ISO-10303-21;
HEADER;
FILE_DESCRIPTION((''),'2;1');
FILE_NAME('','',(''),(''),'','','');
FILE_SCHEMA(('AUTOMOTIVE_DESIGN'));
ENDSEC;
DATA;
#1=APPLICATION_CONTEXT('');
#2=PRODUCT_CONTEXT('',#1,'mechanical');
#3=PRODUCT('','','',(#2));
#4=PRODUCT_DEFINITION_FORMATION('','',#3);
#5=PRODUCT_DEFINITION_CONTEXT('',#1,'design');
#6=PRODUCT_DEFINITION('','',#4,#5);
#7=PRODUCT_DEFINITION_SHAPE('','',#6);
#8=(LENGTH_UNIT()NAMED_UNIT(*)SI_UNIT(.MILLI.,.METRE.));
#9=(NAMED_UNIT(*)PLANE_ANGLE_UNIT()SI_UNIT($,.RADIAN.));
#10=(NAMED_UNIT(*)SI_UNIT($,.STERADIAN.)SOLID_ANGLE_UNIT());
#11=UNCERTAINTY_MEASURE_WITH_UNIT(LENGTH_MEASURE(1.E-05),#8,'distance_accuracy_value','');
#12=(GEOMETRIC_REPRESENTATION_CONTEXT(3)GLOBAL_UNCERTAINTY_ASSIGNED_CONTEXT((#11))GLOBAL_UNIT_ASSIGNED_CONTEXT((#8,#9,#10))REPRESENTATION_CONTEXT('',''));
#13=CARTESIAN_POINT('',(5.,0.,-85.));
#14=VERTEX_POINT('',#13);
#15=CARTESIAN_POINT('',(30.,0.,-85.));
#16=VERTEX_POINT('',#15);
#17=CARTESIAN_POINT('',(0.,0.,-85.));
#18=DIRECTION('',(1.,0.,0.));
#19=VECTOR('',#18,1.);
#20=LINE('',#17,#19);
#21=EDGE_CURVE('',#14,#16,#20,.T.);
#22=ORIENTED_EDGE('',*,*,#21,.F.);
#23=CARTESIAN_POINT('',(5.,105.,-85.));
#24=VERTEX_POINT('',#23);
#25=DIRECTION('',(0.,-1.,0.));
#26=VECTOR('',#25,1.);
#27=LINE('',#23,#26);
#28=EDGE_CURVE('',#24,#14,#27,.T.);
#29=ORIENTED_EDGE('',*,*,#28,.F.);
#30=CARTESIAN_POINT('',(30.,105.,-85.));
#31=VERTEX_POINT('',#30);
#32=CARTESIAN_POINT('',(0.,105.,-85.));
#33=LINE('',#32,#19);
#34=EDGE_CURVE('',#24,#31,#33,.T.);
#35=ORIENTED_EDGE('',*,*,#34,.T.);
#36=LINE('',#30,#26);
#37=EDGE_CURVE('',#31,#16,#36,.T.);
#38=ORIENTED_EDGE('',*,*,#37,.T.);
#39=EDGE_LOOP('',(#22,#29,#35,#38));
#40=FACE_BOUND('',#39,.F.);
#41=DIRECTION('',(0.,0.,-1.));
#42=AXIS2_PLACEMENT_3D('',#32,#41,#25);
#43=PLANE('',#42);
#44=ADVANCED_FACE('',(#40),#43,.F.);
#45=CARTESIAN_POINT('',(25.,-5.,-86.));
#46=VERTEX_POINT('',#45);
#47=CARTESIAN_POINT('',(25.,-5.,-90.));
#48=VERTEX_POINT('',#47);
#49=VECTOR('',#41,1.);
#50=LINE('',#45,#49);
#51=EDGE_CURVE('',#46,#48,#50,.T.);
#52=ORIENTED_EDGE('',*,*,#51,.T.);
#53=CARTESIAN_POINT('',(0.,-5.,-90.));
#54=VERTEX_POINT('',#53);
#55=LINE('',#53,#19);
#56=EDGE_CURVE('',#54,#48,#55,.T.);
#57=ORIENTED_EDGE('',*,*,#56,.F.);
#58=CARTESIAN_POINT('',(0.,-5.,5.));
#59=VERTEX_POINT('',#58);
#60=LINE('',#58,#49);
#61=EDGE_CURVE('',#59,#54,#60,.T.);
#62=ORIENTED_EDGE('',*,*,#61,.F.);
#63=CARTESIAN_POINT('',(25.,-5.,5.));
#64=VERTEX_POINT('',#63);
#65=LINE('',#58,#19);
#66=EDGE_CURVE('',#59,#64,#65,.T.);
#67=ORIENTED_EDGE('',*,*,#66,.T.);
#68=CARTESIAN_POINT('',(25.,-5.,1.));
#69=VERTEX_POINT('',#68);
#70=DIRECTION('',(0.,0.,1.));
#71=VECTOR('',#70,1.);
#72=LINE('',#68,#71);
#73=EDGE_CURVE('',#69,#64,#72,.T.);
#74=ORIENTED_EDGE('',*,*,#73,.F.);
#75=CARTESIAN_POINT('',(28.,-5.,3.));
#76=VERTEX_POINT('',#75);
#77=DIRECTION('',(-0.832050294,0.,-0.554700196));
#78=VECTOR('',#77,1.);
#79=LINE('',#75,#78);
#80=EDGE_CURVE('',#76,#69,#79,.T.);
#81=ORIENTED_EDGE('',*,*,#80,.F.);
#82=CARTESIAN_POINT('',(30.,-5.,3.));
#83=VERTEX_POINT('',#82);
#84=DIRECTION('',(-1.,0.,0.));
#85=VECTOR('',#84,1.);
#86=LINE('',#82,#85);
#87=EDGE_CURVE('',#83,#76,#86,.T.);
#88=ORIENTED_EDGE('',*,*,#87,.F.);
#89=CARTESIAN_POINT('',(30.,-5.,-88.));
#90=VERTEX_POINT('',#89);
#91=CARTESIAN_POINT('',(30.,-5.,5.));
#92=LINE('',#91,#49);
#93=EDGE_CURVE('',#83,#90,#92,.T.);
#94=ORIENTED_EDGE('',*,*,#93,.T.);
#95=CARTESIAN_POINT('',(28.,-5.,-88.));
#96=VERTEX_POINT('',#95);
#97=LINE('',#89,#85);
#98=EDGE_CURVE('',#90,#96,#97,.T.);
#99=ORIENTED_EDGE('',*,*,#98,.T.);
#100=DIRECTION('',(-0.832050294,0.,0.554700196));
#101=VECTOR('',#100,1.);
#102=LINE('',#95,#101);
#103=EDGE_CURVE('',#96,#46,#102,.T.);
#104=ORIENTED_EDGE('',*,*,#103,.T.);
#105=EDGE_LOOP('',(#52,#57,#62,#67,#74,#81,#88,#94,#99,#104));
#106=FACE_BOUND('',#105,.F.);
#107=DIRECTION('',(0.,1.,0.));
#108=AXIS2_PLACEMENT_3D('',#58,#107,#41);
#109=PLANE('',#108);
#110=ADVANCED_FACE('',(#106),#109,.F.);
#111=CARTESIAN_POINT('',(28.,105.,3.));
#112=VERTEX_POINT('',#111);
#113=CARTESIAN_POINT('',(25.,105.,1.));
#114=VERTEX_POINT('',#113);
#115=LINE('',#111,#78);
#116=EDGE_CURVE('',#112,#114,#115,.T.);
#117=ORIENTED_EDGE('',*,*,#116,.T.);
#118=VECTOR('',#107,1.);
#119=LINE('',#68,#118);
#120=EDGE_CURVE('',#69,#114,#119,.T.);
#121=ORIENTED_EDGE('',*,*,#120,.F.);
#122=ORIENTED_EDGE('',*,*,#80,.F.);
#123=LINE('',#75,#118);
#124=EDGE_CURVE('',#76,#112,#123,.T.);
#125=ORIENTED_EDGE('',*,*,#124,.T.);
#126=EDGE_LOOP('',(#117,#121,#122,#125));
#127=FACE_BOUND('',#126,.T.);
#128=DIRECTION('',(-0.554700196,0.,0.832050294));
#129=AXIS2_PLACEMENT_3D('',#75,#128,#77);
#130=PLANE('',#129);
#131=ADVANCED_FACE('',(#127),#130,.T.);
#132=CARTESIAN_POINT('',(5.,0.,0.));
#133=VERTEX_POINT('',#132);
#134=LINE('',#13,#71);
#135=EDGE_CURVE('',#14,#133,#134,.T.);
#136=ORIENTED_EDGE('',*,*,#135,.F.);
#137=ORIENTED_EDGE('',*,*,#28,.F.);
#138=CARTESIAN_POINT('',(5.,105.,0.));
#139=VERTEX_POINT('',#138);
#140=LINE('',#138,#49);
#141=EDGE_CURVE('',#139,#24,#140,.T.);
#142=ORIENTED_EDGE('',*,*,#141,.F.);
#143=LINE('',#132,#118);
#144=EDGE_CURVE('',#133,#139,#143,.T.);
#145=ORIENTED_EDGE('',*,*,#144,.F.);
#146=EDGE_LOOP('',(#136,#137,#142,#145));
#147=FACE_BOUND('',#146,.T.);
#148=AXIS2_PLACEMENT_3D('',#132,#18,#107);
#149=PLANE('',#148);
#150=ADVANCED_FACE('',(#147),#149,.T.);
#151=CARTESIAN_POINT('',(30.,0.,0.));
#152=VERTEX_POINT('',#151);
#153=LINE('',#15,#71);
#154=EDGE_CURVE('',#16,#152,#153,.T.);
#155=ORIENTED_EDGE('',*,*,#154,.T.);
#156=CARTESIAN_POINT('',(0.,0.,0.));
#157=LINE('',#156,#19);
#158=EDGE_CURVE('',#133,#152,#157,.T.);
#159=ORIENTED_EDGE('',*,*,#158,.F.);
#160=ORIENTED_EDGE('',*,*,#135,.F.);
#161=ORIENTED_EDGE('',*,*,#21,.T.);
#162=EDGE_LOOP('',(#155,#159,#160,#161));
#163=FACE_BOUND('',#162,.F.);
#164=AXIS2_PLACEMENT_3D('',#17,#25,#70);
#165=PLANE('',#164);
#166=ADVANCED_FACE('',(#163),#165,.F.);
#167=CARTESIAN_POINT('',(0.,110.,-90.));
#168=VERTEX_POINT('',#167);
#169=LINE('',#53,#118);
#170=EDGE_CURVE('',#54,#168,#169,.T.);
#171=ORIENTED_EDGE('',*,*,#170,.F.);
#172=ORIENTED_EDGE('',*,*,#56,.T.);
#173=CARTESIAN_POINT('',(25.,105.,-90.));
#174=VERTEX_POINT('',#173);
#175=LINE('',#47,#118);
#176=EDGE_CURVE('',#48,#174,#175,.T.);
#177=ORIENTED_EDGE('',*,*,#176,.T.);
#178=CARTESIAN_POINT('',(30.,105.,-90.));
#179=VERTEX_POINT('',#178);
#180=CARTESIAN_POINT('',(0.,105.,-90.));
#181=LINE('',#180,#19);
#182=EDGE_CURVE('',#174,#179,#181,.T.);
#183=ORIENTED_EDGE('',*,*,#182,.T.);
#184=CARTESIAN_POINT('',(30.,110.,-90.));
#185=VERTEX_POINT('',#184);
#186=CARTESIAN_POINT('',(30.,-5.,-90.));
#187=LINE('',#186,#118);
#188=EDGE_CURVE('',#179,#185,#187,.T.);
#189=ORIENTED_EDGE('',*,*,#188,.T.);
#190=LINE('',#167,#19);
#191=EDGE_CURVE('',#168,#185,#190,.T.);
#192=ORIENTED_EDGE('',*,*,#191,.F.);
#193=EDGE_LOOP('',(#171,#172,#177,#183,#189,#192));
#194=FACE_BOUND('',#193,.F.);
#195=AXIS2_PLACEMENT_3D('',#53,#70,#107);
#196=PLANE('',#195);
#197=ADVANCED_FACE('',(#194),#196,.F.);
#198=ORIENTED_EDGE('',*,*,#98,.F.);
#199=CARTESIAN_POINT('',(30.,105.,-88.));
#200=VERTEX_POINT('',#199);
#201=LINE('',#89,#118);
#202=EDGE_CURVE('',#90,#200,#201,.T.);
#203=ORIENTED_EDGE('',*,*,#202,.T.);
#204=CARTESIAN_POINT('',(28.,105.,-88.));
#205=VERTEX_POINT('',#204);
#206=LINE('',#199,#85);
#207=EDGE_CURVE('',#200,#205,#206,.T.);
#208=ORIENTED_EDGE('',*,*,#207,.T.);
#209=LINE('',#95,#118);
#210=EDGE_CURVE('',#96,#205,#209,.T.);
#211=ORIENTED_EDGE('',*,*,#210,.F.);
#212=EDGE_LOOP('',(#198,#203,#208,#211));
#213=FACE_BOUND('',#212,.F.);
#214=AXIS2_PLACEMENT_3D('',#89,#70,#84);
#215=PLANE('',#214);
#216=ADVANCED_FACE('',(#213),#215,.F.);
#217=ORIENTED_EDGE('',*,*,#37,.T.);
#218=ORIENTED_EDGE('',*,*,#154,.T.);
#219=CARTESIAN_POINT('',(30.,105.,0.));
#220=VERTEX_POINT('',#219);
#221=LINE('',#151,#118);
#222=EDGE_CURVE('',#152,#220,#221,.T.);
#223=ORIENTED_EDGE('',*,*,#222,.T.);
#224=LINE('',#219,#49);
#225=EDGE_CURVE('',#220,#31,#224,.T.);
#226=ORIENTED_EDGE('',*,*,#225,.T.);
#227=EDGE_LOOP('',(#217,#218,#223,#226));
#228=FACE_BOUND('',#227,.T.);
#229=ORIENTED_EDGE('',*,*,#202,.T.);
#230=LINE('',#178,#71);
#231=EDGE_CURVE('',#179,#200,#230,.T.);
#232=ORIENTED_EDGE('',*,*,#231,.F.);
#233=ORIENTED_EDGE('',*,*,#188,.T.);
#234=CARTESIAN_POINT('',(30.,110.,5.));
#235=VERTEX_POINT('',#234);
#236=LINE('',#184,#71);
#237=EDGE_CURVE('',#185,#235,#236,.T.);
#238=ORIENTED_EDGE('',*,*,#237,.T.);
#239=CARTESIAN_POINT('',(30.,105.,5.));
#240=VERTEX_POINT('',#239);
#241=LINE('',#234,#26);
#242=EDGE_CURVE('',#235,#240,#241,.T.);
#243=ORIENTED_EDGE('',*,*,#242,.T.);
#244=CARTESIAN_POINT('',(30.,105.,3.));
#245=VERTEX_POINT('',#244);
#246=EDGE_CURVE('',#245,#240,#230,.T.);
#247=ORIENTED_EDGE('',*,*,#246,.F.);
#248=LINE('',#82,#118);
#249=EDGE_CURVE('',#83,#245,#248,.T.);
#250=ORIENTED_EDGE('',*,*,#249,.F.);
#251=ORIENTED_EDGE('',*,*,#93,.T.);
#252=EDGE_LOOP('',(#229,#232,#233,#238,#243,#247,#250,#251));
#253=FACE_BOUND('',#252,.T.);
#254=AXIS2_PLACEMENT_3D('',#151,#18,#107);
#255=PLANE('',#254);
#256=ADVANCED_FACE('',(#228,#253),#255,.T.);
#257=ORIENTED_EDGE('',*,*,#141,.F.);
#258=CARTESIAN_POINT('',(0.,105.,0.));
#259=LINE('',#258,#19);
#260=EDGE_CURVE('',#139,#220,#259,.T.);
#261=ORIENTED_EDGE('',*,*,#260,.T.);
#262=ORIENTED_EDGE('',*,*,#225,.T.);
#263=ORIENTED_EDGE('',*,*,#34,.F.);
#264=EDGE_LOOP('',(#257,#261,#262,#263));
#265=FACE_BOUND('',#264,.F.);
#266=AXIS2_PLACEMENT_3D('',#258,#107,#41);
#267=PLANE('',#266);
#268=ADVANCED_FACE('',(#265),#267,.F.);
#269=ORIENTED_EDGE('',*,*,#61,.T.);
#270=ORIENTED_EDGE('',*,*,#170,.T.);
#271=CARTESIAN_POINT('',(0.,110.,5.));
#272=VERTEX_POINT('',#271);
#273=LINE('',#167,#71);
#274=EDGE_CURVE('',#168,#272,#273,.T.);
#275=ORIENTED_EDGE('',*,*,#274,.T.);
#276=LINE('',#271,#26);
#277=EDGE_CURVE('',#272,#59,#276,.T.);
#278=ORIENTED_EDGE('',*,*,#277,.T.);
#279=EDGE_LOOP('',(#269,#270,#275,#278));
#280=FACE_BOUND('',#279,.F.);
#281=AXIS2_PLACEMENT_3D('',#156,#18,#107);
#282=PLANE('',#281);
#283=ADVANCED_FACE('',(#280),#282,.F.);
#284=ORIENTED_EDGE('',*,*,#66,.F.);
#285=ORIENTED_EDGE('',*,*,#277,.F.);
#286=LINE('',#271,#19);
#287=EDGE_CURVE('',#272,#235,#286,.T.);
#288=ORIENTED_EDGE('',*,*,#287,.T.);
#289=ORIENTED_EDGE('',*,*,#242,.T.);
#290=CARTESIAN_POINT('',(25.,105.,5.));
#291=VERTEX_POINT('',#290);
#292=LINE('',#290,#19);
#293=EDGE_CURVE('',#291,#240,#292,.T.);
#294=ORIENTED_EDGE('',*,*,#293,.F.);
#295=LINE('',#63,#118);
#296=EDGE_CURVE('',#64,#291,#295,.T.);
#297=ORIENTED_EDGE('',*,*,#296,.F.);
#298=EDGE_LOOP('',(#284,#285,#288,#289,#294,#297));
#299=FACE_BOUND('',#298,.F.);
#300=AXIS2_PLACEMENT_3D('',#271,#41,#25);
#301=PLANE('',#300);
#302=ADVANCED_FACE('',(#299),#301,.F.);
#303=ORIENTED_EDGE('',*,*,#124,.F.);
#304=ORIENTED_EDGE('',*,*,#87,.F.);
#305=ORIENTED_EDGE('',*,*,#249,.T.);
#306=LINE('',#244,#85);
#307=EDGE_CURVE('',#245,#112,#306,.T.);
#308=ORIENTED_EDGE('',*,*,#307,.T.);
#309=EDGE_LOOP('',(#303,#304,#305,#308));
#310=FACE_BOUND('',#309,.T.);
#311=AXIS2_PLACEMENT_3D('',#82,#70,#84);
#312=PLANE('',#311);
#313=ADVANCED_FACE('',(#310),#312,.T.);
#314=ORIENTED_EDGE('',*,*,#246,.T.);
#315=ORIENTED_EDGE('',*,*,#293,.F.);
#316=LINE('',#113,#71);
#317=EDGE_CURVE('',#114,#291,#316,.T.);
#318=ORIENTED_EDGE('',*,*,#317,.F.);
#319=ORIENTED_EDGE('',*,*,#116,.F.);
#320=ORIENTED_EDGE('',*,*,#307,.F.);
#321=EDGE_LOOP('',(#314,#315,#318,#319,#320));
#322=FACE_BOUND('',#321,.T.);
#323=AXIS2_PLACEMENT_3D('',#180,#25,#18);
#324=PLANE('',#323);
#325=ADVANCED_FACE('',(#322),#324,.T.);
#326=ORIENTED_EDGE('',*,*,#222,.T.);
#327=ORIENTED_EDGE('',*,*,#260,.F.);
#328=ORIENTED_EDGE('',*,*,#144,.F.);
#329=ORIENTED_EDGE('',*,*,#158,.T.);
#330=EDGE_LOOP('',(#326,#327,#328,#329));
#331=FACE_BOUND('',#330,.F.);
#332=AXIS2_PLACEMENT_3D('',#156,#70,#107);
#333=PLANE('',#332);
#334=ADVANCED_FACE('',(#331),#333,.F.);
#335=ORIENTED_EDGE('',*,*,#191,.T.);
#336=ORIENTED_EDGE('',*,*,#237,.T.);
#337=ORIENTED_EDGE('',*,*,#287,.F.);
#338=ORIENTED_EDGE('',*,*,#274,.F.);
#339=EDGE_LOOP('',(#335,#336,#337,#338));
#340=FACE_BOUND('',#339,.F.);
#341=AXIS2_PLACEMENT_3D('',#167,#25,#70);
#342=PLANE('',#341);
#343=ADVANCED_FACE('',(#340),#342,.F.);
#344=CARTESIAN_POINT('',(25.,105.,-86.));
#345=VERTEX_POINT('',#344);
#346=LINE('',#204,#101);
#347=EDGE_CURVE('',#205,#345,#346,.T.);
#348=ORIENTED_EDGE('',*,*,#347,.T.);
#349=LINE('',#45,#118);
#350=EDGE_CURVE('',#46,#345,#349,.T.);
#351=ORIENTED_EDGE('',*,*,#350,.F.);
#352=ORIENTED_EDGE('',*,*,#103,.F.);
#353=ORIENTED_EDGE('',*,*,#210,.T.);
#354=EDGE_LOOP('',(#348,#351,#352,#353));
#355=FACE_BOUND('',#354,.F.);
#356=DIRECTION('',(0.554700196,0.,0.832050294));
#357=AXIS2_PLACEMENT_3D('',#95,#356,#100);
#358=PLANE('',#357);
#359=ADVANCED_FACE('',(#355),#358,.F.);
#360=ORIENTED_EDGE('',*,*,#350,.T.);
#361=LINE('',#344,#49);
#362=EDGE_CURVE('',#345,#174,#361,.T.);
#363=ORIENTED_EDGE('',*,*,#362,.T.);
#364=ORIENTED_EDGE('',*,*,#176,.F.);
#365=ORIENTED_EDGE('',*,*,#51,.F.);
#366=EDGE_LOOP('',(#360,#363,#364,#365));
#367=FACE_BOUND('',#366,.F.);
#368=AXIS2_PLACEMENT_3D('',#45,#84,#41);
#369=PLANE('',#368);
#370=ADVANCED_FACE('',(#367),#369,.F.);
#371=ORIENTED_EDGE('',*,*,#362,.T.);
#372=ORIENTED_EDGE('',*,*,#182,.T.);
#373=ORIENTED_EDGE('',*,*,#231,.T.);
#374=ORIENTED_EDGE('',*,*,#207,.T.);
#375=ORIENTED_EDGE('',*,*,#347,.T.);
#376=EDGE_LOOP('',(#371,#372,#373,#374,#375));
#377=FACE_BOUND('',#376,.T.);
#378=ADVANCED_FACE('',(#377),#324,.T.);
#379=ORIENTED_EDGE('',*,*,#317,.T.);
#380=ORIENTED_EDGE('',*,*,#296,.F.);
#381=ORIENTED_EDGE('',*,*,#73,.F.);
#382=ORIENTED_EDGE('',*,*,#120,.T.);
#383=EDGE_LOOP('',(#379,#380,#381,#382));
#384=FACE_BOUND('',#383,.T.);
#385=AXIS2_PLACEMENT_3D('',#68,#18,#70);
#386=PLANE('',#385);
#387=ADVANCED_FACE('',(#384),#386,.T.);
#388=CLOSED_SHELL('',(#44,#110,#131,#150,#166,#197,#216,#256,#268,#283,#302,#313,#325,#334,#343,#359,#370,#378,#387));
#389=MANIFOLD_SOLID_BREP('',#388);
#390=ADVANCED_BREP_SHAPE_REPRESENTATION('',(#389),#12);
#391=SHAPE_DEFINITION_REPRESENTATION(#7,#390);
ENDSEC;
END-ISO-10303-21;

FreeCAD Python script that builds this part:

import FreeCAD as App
import Part
import Sketcher

V = App.Vector
Q = App.Units.Quantity

doc = App.newDocument("Part")
body = doc.addObject("PartDesign::Body", "Body")

# Sketch on YZ plane
sketch1 = body.newObject("Sketcher::SketchObject", "Sketch")
sketch1.AttachmentSupport = (doc.getObject("YZ_Plane"), [""])
sketch1.MapMode = "FlatFace"
sketch1.addGeometry(Part.LineSegment(V(110, -90, 0), V(110, 5, 0)), False)
sketch1.addGeometry(Part.LineSegment(V(110, 5, 0), V(-5, 5, 0)), False)
sketch1.addGeometry(Part.LineSegment(V(-5, 5, 0), V(-5, -90, 0)), False)
sketch1.addGeometry(Part.LineSegment(V(-5, -90, 0), V(110, -90, 0)), False)
sketch1.addGeometry(Part.LineSegment(V(0, -85, 0), V(0, 0, 0)), False)
sketch1.addGeometry(Part.LineSegment(V(0, 0, 0), V(105, 0, 0)), False)
sketch1.addGeometry(Part.LineSegment(V(105, 0, 0), V(105, -85, 0)), False)
sketch1.addGeometry(Part.LineSegment(V(105, -85, 0), V(0, -85, 0)), False)
sketch1.addConstraint(Sketcher.Constraint("Coincident", 0, 2, 1, 1))
sketch1.addConstraint(Sketcher.Constraint("Coincident", 1, 2, 2, 1))
sketch1.addConstraint(Sketcher.Constraint("Coincident", 2, 2, 3, 1))
sketch1.addConstraint(Sketcher.Constraint("Coincident", 3, 2, 0, 1))
sketch1.addConstraint(Sketcher.Constraint("Coincident", 4, 2, 5, 1))
sketch1.addConstraint(Sketcher.Constraint("Coincident", 5, 2, 6, 1))
sketch1.addConstraint(Sketcher.Constraint("Coincident", 6, 2, 7, 1))
sketch1.addConstraint(Sketcher.Constraint("Coincident", 7, 2, 4, 1))
sketch1.addConstraint(Sketcher.Constraint("Vertical", 0))
sketch1.addConstraint(Sketcher.Constraint("Horizontal", 1))
sketch1.addConstraint(Sketcher.Constraint("Vertical", 2))
sketch1.addConstraint(Sketcher.Constraint("Horizontal", 3))
sketch1.addConstraint(Sketcher.Constraint("Vertical", 4))
sketch1.addConstraint(Sketcher.Constraint("Horizontal", 5))
sketch1.addConstraint(Sketcher.Constraint("Vertical", 6))
sketch1.addConstraint(Sketcher.Constraint("Horizontal", 7))
sketch1.addConstraint(Sketcher.Constraint("Coincident", 4, 2, -1, 1))
sketch1.addConstraint(Sketcher.Constraint("DistanceX", 5, 1, 5, 2, Q("105 mm")))
sketch1.addConstraint(Sketcher.Constraint("DistanceY", 4, 1, 4, 2, Q("85 mm")))
sketch1.addConstraint(Sketcher.Constraint("DistanceY", -1, 1, 0, 2, Q("5 mm")))
sketch1.addConstraint(Sketcher.Constraint("DistanceX", 1, 2, -1, 1, Q("5 mm")))
sketch1.addConstraint(Sketcher.Constraint("DistanceX", 5, 2, 0, 2, Q("5 mm")))
sketch1.addConstraint(Sketcher.Constraint("DistanceY", 3, 2, 6, 2, Q("5 mm")))
pad1 = body.newObject("PartDesign::Pad", "Pad")
pad1.Profile = sketch1
pad1.Length = 30

# Sketch on YZ plane
sketch2 = body.newObject("Sketcher::SketchObject", "Sketch001")
sketch2.AttachmentSupport = (doc.getObject("YZ_Plane"), [""])
sketch2.MapMode = "FlatFace"
sketch2.addGeometry(Part.LineSegment(V(105, 0, 0), V(0, 0, 0)), False)
sketch2.addGeometry(Part.LineSegment(V(0, 0, 0), V(0, -85, 0)), False)
sketch2.addGeometry(Part.LineSegment(V(0, -85, 0), V(105, -85, 0)), False)
sketch2.addGeometry(Part.LineSegment(V(105, -85, 0), V(105, 0, 0)), False)
sketch2.addConstraint(Sketcher.Constraint("Coincident", 0, 2, 1, 1))
sketch2.addConstraint(Sketcher.Constraint("Coincident", 1, 2, 2, 1))
sketch2.addConstraint(Sketcher.Constraint("Coincident", 2, 2, 3, 1))
sketch2.addConstraint(Sketcher.Constraint("Coincident", 3, 2, 0, 1))
sketch2.addConstraint(Sketcher.Constraint("Horizontal", 0))
sketch2.addConstraint(Sketcher.Constraint("Vertical", 1))
sketch2.addConstraint(Sketcher.Constraint("Horizontal", 2))
sketch2.addConstraint(Sketcher.Constraint("Vertical", 3))
sketch2.addConstraint(Sketcher.Constraint("Coincident", 0, 2, -1, 1))
sketch2.addConstraint(Sketcher.Constraint("DistanceX", 0, 2, 0, 1, Q("105 mm")))
sketch2.addConstraint(Sketcher.Constraint("DistanceY", 1, 2, 1, 1, Q("85 mm")))
pad2 = body.newObject("PartDesign::Pad", "Pad001")
pad2.Profile = sketch2
pad2.Length = 5

# Sketch on XZ plane
sketch3 = body.newObject("Sketcher::SketchObject", "Sketch002")
sketch3.AttachmentSupport = (doc.getObject("XZ_Plane"), [""])
sketch3.MapMode = "FlatFace"
sketch3.AttachmentOffset = App.Placement(V(0, 0, 5), App.Rotation())
sketch3.addGeometry(Part.LineSegment(V(25, -86, 0), V(25, -90, 0)), False)
sketch3.addGeometry(Part.LineSegment(V(25, -90, 0), V(30, -90, 0)), False)
sketch3.addGeometry(Part.LineSegment(V(30, -90, 0), V(30, -88, 0)), False)
sketch3.addGeometry(Part.LineSegment(V(30, -88, 0), V(28, -88, 0)), False)
sketch3.addGeometry(Part.LineSegment(V(28, -88, 0), V(25, -86, 0)), False)
sketch3.addGeometry(Part.LineSegment(V(28, 3, 0), V(30, 3, 0)), False)
sketch3.addGeometry(Part.LineSegment(V(30, 3, 0), V(30, 5, 0)), False)
sketch3.addGeometry(Part.LineSegment(V(30, 5, 0), V(25, 5, 0)), False)
sketch3.addGeometry(Part.LineSegment(V(25, 5, 0), V(25, 1, 0)), False)
sketch3.addGeometry(Part.LineSegment(V(25, 1, 0), V(28, 3, 0)), False)
sketch3.addConstraint(Sketcher.Constraint("Coincident", 0, 2, 1, 1))
sketch3.addConstraint(Sketcher.Constraint("Coincident", 1, 2, 2, 1))
sketch3.addConstraint(Sketcher.Constraint("Coincident", 2, 2, 3, 1))
sketch3.addConstraint(Sketcher.Constraint("Coincident", 3, 2, 4, 1))
sketch3.addConstraint(Sketcher.Constraint("Coincident", 4, 2, 0, 1))
sketch3.addConstraint(Sketcher.Constraint("Coincident", 5, 2, 6, 1))
sketch3.addConstraint(Sketcher.Constraint("Coincident", 6, 2, 7, 1))
sketch3.addConstraint(Sketcher.Constraint("Coincident", 7, 2, 8, 1))
sketch3.addConstraint(Sketcher.Constraint("Coincident", 8, 2, 9, 1))
sketch3.addConstraint(Sketcher.Constraint("Coincident", 9, 2, 5, 1))
sketch3.addConstraint(Sketcher.Constraint("Vertical", 0))
sketch3.addConstraint(Sketcher.Constraint("Horizontal", 1))
sketch3.addConstraint(Sketcher.Constraint("Vertical", 2))
sketch3.addConstraint(Sketcher.Constraint("Horizontal", 3))
sketch3.addConstraint(Sketcher.Constraint("Horizontal", 5))
sketch3.addConstraint(Sketcher.Constraint("Vertical", 6))
sketch3.addConstraint(Sketcher.Constraint("Horizontal", 7))
sketch3.addConstraint(Sketcher.Constraint("Vertical", 8))
sketch3.addConstraint(Sketcher.Constraint("Vertical", 2, 2, 5, 2))
sketch3.addConstraint(Sketcher.Constraint("Vertical", 4, 2, 7, 2))
sketch3.addConstraint(Sketcher.Constraint("Vertical", 3, 2, 9, 2))
sketch3.addConstraint(Sketcher.Constraint("Equal", 5, 2))
sketch3.addConstraint(Sketcher.Constraint("Equal", 2, 6))
sketch3.addConstraint(Sketcher.Constraint("Equal", 0, 8))
sketch3.addConstraint(Sketcher.Constraint("DistanceX", 1, 1, 1, 2, Q("5 mm")))
sketch3.addConstraint(Sketcher.Constraint("DistanceX", 3, 2, 3, 1, Q("2 mm")))
sketch3.addConstraint(Sketcher.Constraint("DistanceY", 0, 2, 0, 1, Q("4 mm")))
sketch3.addConstraint(Sketcher.Constraint("DistanceY", -1, 1, 6, 2, Q("5 mm")))
sketch3.addConstraint(Sketcher.Constraint("DistanceX", -1, 1, 0, 2, Q("25 mm")))
sketch3.addConstraint(Sketcher.Constraint("DistanceY", 0, 2, -1, 1, Q("90 mm")))
pocket1 = body.newObject("PartDesign::Pocket", "Pocket")
pocket1.Profile = sketch3
pocket1.Length = 110

doc.recompute()
